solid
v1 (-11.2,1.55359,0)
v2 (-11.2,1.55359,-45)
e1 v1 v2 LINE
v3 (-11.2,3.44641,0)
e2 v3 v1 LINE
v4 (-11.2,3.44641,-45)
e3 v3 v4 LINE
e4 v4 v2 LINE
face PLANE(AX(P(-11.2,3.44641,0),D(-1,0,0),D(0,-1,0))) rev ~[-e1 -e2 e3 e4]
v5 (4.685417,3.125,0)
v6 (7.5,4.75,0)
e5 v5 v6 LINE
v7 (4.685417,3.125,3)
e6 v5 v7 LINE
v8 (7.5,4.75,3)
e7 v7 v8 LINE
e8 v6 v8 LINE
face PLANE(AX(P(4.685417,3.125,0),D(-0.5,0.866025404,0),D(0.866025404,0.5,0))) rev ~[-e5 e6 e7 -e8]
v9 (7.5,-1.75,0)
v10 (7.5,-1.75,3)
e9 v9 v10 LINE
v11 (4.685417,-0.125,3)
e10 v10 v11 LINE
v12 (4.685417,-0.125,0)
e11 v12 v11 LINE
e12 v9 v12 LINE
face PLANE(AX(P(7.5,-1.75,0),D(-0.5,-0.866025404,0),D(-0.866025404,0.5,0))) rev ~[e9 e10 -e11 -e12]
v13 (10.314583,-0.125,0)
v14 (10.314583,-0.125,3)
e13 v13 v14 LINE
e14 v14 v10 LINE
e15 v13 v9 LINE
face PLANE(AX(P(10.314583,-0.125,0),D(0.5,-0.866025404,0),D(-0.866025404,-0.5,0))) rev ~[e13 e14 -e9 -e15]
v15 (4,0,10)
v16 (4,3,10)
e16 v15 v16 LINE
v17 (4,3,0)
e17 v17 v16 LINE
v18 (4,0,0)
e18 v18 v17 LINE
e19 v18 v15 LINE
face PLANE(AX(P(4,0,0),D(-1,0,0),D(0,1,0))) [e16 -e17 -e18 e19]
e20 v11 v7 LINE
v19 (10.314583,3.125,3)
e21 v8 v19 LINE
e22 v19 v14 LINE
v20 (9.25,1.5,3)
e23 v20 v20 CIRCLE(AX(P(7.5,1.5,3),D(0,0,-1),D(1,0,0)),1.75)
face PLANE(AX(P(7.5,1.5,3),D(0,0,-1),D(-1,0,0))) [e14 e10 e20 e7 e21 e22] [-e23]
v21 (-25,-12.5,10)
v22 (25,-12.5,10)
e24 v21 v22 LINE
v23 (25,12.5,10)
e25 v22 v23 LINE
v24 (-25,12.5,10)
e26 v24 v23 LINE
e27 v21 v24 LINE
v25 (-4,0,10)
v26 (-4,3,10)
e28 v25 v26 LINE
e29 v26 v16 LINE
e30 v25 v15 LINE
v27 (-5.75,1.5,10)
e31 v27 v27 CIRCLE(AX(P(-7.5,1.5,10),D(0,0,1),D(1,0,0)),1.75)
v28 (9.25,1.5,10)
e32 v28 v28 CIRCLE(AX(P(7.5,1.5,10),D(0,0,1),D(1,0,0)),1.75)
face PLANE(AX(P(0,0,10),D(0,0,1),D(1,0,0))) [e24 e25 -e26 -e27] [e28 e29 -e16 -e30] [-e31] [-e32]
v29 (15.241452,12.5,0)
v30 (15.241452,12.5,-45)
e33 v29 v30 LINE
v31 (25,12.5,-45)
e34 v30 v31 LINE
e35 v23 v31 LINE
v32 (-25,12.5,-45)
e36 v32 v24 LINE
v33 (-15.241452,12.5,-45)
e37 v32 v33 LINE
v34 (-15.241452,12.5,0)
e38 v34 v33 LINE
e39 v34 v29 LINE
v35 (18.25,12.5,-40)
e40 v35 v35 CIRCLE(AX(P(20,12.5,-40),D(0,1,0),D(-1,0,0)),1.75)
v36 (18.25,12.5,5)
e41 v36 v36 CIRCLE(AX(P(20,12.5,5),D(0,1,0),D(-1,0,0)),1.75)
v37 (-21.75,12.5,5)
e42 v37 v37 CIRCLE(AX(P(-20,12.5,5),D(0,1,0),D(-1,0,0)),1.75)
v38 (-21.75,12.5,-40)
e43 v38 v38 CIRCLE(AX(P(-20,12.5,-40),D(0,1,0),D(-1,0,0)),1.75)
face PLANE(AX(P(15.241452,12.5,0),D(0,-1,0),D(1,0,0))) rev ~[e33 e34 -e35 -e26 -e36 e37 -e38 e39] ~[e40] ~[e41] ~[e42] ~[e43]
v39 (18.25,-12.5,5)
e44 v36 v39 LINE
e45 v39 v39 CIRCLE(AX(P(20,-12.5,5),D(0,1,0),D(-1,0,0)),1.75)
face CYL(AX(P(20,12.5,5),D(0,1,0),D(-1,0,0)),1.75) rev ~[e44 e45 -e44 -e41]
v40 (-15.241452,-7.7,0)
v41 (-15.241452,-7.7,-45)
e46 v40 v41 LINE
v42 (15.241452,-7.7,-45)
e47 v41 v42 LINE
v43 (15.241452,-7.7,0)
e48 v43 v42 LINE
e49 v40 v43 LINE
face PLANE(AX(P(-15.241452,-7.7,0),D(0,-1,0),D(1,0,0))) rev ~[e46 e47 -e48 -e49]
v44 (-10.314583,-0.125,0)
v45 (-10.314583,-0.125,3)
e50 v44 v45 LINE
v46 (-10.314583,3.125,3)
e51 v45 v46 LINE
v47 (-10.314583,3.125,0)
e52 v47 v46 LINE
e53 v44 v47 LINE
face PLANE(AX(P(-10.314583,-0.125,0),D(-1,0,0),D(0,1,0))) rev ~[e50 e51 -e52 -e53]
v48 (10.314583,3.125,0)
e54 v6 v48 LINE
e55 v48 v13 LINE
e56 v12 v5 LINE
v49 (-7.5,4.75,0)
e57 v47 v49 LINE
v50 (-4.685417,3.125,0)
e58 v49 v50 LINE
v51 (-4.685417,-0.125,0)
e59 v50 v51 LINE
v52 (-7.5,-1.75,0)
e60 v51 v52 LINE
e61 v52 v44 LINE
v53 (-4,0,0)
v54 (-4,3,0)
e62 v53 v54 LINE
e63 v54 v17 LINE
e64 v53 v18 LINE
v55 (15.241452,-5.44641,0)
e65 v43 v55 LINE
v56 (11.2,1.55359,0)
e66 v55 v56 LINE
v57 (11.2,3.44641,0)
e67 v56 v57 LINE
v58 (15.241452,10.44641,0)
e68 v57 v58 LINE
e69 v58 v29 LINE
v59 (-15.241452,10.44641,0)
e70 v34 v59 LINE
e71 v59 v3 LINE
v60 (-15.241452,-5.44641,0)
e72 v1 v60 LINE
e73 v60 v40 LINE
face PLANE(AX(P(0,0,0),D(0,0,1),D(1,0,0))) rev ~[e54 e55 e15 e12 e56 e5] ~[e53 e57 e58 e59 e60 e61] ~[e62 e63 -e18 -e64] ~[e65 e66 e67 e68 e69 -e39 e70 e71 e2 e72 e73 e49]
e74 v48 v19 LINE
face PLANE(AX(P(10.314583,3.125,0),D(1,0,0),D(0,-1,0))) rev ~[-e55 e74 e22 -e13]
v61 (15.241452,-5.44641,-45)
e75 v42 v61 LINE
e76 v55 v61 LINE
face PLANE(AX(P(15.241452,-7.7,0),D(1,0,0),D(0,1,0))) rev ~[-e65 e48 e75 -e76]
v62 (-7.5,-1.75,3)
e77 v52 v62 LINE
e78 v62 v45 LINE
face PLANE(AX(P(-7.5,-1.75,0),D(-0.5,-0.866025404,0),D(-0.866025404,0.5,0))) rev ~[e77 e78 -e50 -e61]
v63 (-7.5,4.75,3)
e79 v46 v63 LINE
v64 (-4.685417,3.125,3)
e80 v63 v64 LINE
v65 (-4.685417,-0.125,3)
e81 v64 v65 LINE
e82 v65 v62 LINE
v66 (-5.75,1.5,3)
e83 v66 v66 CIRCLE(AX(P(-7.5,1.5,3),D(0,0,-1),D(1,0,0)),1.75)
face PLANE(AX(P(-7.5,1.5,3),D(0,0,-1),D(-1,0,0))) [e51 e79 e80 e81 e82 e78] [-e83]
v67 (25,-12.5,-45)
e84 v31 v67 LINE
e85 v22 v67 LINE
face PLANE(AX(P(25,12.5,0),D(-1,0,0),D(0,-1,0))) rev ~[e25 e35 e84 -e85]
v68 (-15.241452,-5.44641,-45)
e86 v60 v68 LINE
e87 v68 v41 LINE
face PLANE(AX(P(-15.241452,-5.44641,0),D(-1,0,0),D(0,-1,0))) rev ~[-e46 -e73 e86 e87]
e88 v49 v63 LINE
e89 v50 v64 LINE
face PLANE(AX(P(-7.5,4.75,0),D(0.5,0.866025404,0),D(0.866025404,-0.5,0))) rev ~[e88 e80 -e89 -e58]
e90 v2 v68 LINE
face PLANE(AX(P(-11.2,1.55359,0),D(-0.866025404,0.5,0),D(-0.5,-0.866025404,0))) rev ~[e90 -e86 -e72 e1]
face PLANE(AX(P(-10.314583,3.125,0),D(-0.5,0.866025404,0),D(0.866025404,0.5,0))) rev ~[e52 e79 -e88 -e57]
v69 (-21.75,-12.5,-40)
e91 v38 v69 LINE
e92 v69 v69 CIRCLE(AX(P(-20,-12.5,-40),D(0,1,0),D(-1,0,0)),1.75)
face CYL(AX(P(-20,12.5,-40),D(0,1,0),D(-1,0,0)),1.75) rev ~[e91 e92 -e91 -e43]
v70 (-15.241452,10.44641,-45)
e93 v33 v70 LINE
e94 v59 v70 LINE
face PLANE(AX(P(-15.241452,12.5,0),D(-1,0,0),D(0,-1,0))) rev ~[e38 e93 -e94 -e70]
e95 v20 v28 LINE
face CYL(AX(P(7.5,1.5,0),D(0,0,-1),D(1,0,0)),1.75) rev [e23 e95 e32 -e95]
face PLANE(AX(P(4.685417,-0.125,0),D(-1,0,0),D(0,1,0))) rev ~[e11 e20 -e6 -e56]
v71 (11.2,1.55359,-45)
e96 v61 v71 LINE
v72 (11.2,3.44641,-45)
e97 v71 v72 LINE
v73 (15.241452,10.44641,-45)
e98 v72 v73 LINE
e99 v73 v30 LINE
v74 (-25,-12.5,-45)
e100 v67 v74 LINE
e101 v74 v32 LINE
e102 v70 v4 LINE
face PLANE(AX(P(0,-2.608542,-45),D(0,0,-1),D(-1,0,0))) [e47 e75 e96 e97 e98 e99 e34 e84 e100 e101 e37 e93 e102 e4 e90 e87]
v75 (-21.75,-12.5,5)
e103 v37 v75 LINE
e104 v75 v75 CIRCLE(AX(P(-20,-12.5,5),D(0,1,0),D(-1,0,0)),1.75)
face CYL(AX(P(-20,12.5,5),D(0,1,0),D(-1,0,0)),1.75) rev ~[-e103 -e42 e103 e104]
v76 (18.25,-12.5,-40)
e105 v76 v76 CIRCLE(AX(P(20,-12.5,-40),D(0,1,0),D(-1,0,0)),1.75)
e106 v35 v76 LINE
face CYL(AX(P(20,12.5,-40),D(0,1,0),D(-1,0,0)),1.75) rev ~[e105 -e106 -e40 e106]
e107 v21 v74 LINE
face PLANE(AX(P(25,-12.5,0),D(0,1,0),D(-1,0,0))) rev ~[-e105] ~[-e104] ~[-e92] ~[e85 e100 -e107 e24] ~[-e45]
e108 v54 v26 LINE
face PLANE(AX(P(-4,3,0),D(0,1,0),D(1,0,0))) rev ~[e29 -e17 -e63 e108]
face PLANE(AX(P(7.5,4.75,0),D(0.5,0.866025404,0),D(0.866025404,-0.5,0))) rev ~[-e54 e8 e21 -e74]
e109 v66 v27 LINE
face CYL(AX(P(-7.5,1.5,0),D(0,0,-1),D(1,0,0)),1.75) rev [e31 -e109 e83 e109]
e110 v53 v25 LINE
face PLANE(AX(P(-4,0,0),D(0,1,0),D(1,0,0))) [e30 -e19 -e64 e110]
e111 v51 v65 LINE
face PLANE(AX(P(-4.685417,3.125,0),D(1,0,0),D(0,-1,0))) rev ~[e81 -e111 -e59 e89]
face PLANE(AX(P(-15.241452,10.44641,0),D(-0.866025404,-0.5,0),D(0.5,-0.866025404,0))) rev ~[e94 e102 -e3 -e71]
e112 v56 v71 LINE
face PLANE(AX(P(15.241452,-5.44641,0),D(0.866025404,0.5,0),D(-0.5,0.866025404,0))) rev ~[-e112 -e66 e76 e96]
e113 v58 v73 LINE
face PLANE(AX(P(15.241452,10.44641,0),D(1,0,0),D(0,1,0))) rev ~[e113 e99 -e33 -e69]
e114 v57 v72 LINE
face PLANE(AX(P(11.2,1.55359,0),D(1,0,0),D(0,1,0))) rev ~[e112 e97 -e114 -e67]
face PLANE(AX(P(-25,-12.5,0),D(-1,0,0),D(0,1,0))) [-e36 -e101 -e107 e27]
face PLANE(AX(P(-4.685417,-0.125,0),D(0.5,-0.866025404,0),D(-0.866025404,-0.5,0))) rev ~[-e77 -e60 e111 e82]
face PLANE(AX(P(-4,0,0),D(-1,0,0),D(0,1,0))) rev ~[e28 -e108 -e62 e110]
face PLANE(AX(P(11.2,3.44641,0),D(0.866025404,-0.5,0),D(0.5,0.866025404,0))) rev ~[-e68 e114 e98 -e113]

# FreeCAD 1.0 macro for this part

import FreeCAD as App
import Part
import Sketcher

V = App.Vector
Q = App.Units.Quantity

doc = App.newDocument("Part")
params = doc.addObject("Spreadsheet::Sheet", "Params")
for row, (alias, value) in enumerate([
    ("sketch1_diameter", "3.5 mm"),
    ("sketch1_width", "50 mm"),
    ("sketch1_width2", "8 mm"),
    ("sketch1_height", "25 mm"),
    ("sketch1_height2", "3 mm"),
    ("pad1_length", "10 mm"),
    ("sketch2_width", "50 mm"),
    ("sketch2_height", "25 mm"),
    ("pad2_length", "45 mm"),
    ("sketch3_height", "3.25 mm"),
    ("pocket1_length", "3 mm"),
    ("sketch4_diameter", "3.5 mm"),
], start=1):
    params.set(f"A{row}", alias)
    params.set(f"B{row}", "=" + value)
    params.setAlias(f"B{row}", alias)

body = doc.addObject("PartDesign::Body", "Body")

sketch1 = doc.addObject("Sketcher::SketchObject", "Sketch")
body.addObject(sketch1)
sketch1.AttachmentSupport = (doc.XY_Plane, [""])
sketch1.MapMode = "FlatFace"
sketch1.addGeometry(Part.LineSegment(V(-25, 12.5, 0), V(-25, -12.5, 0)), False)
sketch1.addGeometry(Part.LineSegment(V(-25, -12.5, 0), V(25, -12.5, 0)), False)
sketch1.addGeometry(Part.LineSegment(V(25, -12.5, 0), V(25, 12.5, 0)), False)
sketch1.addGeometry(Part.LineSegment(V(25, 12.5, 0), V(-25, 12.5, 0)), False)
sketch1.addGeometry(Part.Circle(V(-7.5, 1.5, 0), V(0, 0, 1), 1.75), False)
sketch1.addGeometry(Part.LineSegment(V(4, 0, 0), V(-4, 0, 0)), False)
sketch1.addGeometry(Part.LineSegment(V(-4, 0, 0), V(-4, 3, 0)), False)
sketch1.addGeometry(Part.LineSegment(V(-4, 3, 0), V(4, 3, 0)), False)
sketch1.addGeometry(Part.LineSegment(V(4, 3, 0), V(4, 0, 0)), False)
sketch1.addGeometry(Part.Circle(V(7.5, 1.5, 0), V(0, 0, 1), 1.75), False)
sketch1.addConstraint(Sketcher.Constraint("Coincident", 0, 2, 1, 1))
sketch1.addConstraint(Sketcher.Constraint("Coincident", 1, 2, 2, 1))
sketch1.addConstraint(Sketcher.Constraint("Coincident", 2, 2, 3, 1))
sketch1.addConstraint(Sketcher.Constraint("Coincident", 3, 2, 0, 1))
sketch1.addConstraint(Sketcher.Constraint("Coincident", 5, 2, 6, 1))
sketch1.addConstraint(Sketcher.Constraint("Coincident", 6, 2, 7, 1))
sketch1.addConstraint(Sketcher.Constraint("Coincident", 7, 2, 8, 1))
sketch1.addConstraint(Sketcher.Constraint("Coincident", 8, 2, 5, 1))
sketch1.addConstraint(Sketcher.Constraint("Vertical", 0))
sketch1.addConstraint(Sketcher.Constraint("Horizontal", 1))
sketch1.addConstraint(Sketcher.Constraint("Vertical", 2))
sketch1.addConstraint(Sketcher.Constraint("Horizontal", 3))
sketch1.addConstraint(Sketcher.Constraint("Horizontal", 5))
sketch1.addConstraint(Sketcher.Constraint("Vertical", 6))
sketch1.addConstraint(Sketcher.Constraint("Horizontal", 7))
sketch1.addConstraint(Sketcher.Constraint("Vertical", 8))
sketch1.addConstraint(Sketcher.Constraint("Equal", 4, 9))
sketch1.addConstraint(Sketcher.Constraint("Symmetric", 0, 2, 2, 2, -1, 1))
sketch1.addConstraint(Sketcher.Constraint("Symmetric", 5, 2, 8, 2, -1, 1))
sketch1.addConstraint(Sketcher.Constraint("Symmetric", 4, 3, 9, 3, -2))
sketch1.addConstraint(Sketcher.Constraint("Diameter", 4, Q("3.5 mm")))
sketch1.addConstraint(Sketcher.Constraint("DistanceX", 1, 1, 1, 2, Q("50 mm")))
sketch1.addConstraint(Sketcher.Constraint("DistanceX", 5, 2, 5, 1, Q("8 mm")))
sketch1.addConstraint(Sketcher.Constraint("DistanceY", 0, 2, 0, 1, Q("25 mm")))
sketch1.addConstraint(Sketcher.Constraint("DistanceY", 6, 1, 6, 2, Q("3 mm")))
sketch1.addConstraint(Sketcher.Constraint("DistanceX", 4, 3, 9, 3, Q("15 mm")))
sketch1.addConstraint(Sketcher.Constraint("DistanceY", 0, 2, 4, 3, Q("14 mm")))
sketch1.setExpression("Constraints[20]", "Params.sketch1_diameter")
sketch1.setExpression("Constraints[21]", "Params.sketch1_width")
sketch1.setExpression("Constraints[22]", "Params.sketch1_width2")
sketch1.setExpression("Constraints[23]", "Params.sketch1_height")
sketch1.setExpression("Constraints[24]", "Params.sketch1_height2")
pad1 = doc.addObject("PartDesign::Pad", "Pad")
body.addObject(pad1)
pad1.Profile = sketch1
pad1.setExpression("Length", "Params.pad1_length")

sketch2 = doc.addObject("Sketcher::SketchObject", "Sketch001")
body.addObject(sketch2)
sketch2.AttachmentSupport = (doc.XY_Plane, [""])
sketch2.MapMode = "FlatFace"
sketch2.addGeometry(Part.LineSegment(V(15.241452, 12.5, 0), V(25, 12.5, 0)), False)
sketch2.addGeometry(Part.LineSegment(V(25, 12.5, 0), V(25, -12.5, 0)), False)
sketch2.addGeometry(Part.LineSegment(V(25, -12.5, 0), V(-25, -12.5, 0)), False)
sketch2.addGeometry(Part.LineSegment(V(-25, -12.5, 0), V(-25, 12.5, 0)), False)
sketch2.addGeometry(Part.LineSegment(V(-25, 12.5, 0), V(-15.241452, 12.5, 0)), False)
sketch2.addGeometry(Part.LineSegment(V(-15.241452, 12.5, 0), V(-15.241452, 10.44641, 0)), False)
sketch2.addGeometry(Part.LineSegment(V(-15.241452, 10.44641, 0), V(-11.2, 3.44641, 0)), False)
sketch2.addGeometry(Part.LineSegment(V(-11.2, 3.44641, 0), V(-11.2, 1.55359, 0)), False)
sketch2.addGeometry(Part.LineSegment(V(-11.2, 1.55359, 0), V(-15.241452, -5.44641, 0)), False)
sketch2.addGeometry(Part.LineSegment(V(-15.241452, -5.44641, 0), V(-15.241452, -7.7, 0)), False)
sketch2.addGeometry(Part.LineSegment(V(-15.241452, -7.7, 0), V(15.241452, -7.7, 0)), False)
sketch2.addGeometry(Part.LineSegment(V(15.241452, -7.7, 0), V(15.241452, -5.44641, 0)), False)
sketch2.addGeometry(Part.LineSegment(V(15.241452, -5.44641, 0), V(11.2, 1.55359, 0)), False)
sketch2.addGeometry(Part.LineSegment(V(11.2, 1.55359, 0), V(11.2, 3.44641, 0)), False)
sketch2.addGeometry(Part.LineSegment(V(11.2, 3.44641, 0), V(15.241452, 10.44641, 0)), False)
sketch2.addGeometry(Part.LineSegment(V(15.241452, 10.44641, 0), V(15.241452, 12.5, 0)), False)
sketch2.addConstraint(Sketcher.Constraint("Coincident", 0, 2, 1, 1))
sketch2.addConstraint(Sketcher.Constraint("Coincident", 1, 2, 2, 1))
sketch2.addConstraint(Sketcher.Constraint("Coincident", 2, 2, 3, 1))
sketch2.addConstraint(Sketcher.Constraint("Coincident", 3, 2, 4, 1))
sketch2.addConstraint(Sketcher.Constraint("Coincident", 4, 2, 5, 1))
sketch2.addConstraint(Sketcher.Constraint("Coincident", 5, 2, 6, 1))
sketch2.addConstraint(Sketcher.Constraint("Coincident", 6, 2, 7, 1))
sketch2.addConstraint(Sketcher.Constraint("Coincident", 7, 2, 8, 1))
sketch2.addConstraint(Sketcher.Constraint("Coincident", 8, 2, 9, 1))
sketch2.addConstraint(Sketcher.Constraint("Coincident", 9, 2, 10, 1))
sketch2.addConstraint(Sketcher.Constraint("Coincident", 10, 2, 11, 1))
sketch2.addConstraint(Sketcher.Constraint("Coincident", 11, 2, 12, 1))
sketch2.addConstraint(Sketcher.Constraint("Coincident", 12, 2, 13, 1))
sketch2.addConstraint(Sketcher.Constraint("Coincident", 13, 2, 14, 1))
sketch2.addConstraint(Sketcher.Constraint("Coincident", 14, 2, 15, 1))
sketch2.addConstraint(Sketcher.Constraint("Coincident", 15, 2, 0, 1))
sketch2.addConstraint(Sketcher.Constraint("Horizontal", 0))
sketch2.addConstraint(Sketcher.Constraint("Vertical", 1))
sketch2.addConstraint(Sketcher.Constraint("Horizontal", 2))
sketch2.addConstraint(Sketcher.Constraint("Vertical", 3))
sketch2.addConstraint(Sketcher.Constraint("Horizontal", 4))
sketch2.addConstraint(Sketcher.Constraint("Vertical", 5))
sketch2.addConstraint(Sketcher.Constraint("Vertical", 7))
sketch2.addConstraint(Sketcher.Constraint("Vertical", 9))
sketch2.addConstraint(Sketcher.Constraint("Horizontal", 10))
sketch2.addConstraint(Sketcher.Constraint("Vertical", 11))
sketch2.addConstraint(Sketcher.Constraint("Vertical", 13))
sketch2.addConstraint(Sketcher.Constraint("Vertical", 15))
sketch2.addConstraint(Sketcher.Constraint("Symmetric", 0, 2, 2, 2, -1, 1))
sketch2.addConstraint(Sketcher.Constraint("Symmetric", 8, 2, 11, 2, -2))
sketch2.addConstraint(Sketcher.Constraint("Symmetric", 7, 2, 12, 2, -2))
sketch2.addConstraint(Sketcher.Constraint("Symmetric", 5, 2, 14, 2, -2))
sketch2.addConstraint(Sketcher.Constraint("Parallel", 6, 12))
sketch2.addConstraint(Sketcher.Constraint("Parallel", 8, 14))
sketch2.addConstraint(Sketcher.Constraint("Horizontal", 0, 2, 3, 2))
sketch2.addConstraint(Sketcher.Constraint("Vertical", 5, 2, 8, 2))
sketch2.addConstraint(Sketcher.Constraint("DistanceX", 2, 2, 2, 1, Q("50 mm")))
sketch2.addConstraint(Sketcher.Constraint("DistanceY", 1, 2, 1, 1, Q("25 mm")))
sketch2.addConstraint(Sketcher.Constraint("Angle", 6, Q("-60 deg")))
sketch2.addConstraint(Sketcher.Constraint("DistanceY", 6, 2, 5, 2, Q("7 mm")))
sketch2.addConstraint(Sketcher.Constraint("DistanceX", 6, 2, -1, 1, Q("11.2 mm")))
sketch2.addConstraint(Sketcher.Constraint("DistanceY", 9, 2, -1, 1, Q("7.7 mm")))
sketch2.addConstraint(Sketcher.Constraint("DistanceY", 5, 2, 5, 1, Q("2.05359 mm")))
sketch2.addConstraint(Sketcher.Constraint("DistanceY", 7, 2, 7, 1, Q("1.89282 mm")))
sketch2.setExpression("Constraints[36]", "Params.sketch2_width")
sketch2.setExpression("Constraints[37]", "Params.sketch2_height")
pad2 = doc.addObject("PartDesign::Pad", "Pad001")
body.addObject(pad2)
pad2.Profile = sketch2
pad2.setExpression("Length", "Params.pad2_length")
pad2.Reversed = True

sketch3 = doc.addObject("Sketcher::SketchObject", "Sketch002")
body.addObject(sketch3)
sketch3.AttachmentSupport = (doc.XY_Plane, [""])
sketch3.MapMode = "FlatFace"
sketch3.addGeometry(Part.LineSegment(V(7.5, 4.75, 0), V(10.314583, 3.125, 0)), False)
sketch3.addGeometry(Part.LineSegment(V(10.314583, 3.125, 0), V(10.314583, -0.125, 0)), False)
sketch3.addGeometry(Part.LineSegment(V(10.314583, -0.125, 0), V(7.5, -1.75, 0)), False)
sketch3.addGeometry(Part.LineSegment(V(7.5, -1.75, 0), V(4.685417, -0.125, 0)), False)
sketch3.addGeometry(Part.LineSegment(V(4.685417, -0.125, 0), V(4.685417, 3.125, 0)), False)
sketch3.addGeometry(Part.LineSegment(V(4.685417, 3.125, 0), V(7.5, 4.75, 0)), False)
sketch3.addGeometry(Part.LineSegment(V(-7.5, 4.75, 0), V(-4.685417, 3.125, 0)), False)
sketch3.addGeometry(Part.LineSegment(V(-4.685417, 3.125, 0), V(-4.685417, -0.125, 0)), False)
sketch3.addGeometry(Part.LineSegment(V(-4.685417, -0.125, 0), V(-7.5, -1.75, 0)), False)
sketch3.addGeometry(Part.LineSegment(V(-7.5, -1.75, 0), V(-10.314583, -0.125, 0)), False)
sketch3.addGeometry(Part.LineSegment(V(-10.314583, -0.125, 0), V(-10.314583, 3.125, 0)), False)
sketch3.addGeometry(Part.LineSegment(V(-10.314583, 3.125, 0), V(-7.5, 4.75, 0)), False)
sketch3.addConstraint(Sketcher.Constraint("Coincident", 0, 2, 1, 1))
sketch3.addConstraint(Sketcher.Constraint("Coincident", 1, 2, 2, 1))
sketch3.addConstraint(Sketcher.Constraint("Coincident", 2, 2, 3, 1))
sketch3.addConstraint(Sketcher.Constraint("Coincident", 3, 2, 4, 1))
sketch3.addConstraint(Sketcher.Constraint("Coincident", 4, 2, 5, 1))
sketch3.addConstraint(Sketcher.Constraint("Coincident", 5, 2, 0, 1))
sketch3.addConstraint(Sketcher.Constraint("Coincident", 6, 2, 7, 1))
sketch3.addConstraint(Sketcher.Constraint("Coincident", 7, 2, 8, 1))
sketch3.addConstraint(Sketcher.Constraint("Coincident", 8, 2, 9, 1))
sketch3.addConstraint(Sketcher.Constraint("Coincident", 9, 2, 10, 1))
sketch3.addConstraint(Sketcher.Constraint("Coincident", 10, 2, 11, 1))
sketch3.addConstraint(Sketcher.Constraint("Coincident", 11, 2, 6, 1))
sketch3.addConstraint(Sketcher.Constraint("Vertical", 1))
sketch3.addConstraint(Sketcher.Constraint("Vertical", 4))
sketch3.addConstraint(Sketcher.Constraint("Vertical", 7))
sketch3.addConstraint(Sketcher.Constraint("Vertical", 10))
sketch3.addConstraint(Sketcher.Constraint("Symmetric", 4, 2, 6, 2, -2))
sketch3.addConstraint(Sketcher.Constraint("Symmetric", 2, 2, 8, 2, -2))
sketch3.addConstraint(Sketcher.Constraint("Symmetric", 1, 2, 9, 2, -2))
sketch3.addConstraint(Sketcher.Constraint("Symmetric", 5, 2, 11, 2, -2))
sketch3.addConstraint(Sketcher.Constraint("Parallel", 0, 3))
sketch3.addConstraint(Sketcher.Constraint("Parallel", 2, 5))
sketch3.addConstraint(Sketcher.Constraint("Parallel", 3, 6))
sketch3.addConstraint(Sketcher.Constraint("Parallel", 5, 8))
sketch3.addConstraint(Sketcher.Constraint("Parallel", 8, 11))
sketch3.addConstraint(Sketcher.Constraint("Horizontal", 1, 2, 3, 2))
sketch3.addConstraint(Sketcher.Constraint("Horizontal", 0, 2, 4, 2))
sketch3.addConstraint(Sketcher.Constraint("Angle", 0, Q("-30 deg")))
sketch3.addConstraint(Sketcher.Constraint("DistanceX", 6, 2, 0, 2, Q("15 mm")))
sketch3.addConstraint(Sketcher.Constraint("DistanceY", 1, 2, 1, 1, Q("3.25 mm")))
sketch3.addConstraint(Sketcher.Constraint("DistanceY", 2, 2, 5, 2, Q("6.5 mm")))
sketch3.addConstraint(Sketcher.Constraint("DistanceY", 2, 2, -1, 1, Q("1.75 mm")))
sketch3.setExpression("Constraints[29]", "Params.sketch3_height")
pocket1 = doc.addObject("PartDesign::Pocket", "Pocket")
body.addObject(pocket1)
pocket1.Profile = sketch3
pocket1.setExpression("Length", "Params.pocket1_length")
pocket1.Reversed = True

sketch4 = doc.addObject("Sketcher::SketchObject", "Sketch003")
body.addObject(sketch4)
sketch4.AttachmentSupport = (doc.XZ_Plane, [""])
sketch4.MapMode = "FlatFace"
sketch4.AttachmentOffset = App.Placement(V(0, 0, -12.5), App.Rotation())
sketch4.addGeometry(Part.Circle(V(-20, 5, 0), V(0, 0, 1), 1.75), False)
sketch4.addGeometry(Part.Circle(V(-20, -40, 0), V(0, 0, 1), 1.75), False)
sketch4.addGeometry(Part.Circle(V(20, -40, 0), V(0, 0, 1), 1.75), False)
sketch4.addGeometry(Part.Circle(V(20, 5, 0), V(0, 0, 1), 1.75), False)
sketch4.addConstraint(Sketcher.Constraint("Equal", 0, 1))
sketch4.addConstraint(Sketcher.Constraint("Equal", 1, 2))
sketch4.addConstraint(Sketcher.Constraint("Equal", 2, 3))
sketch4.addConstraint(Sketcher.Constraint("Symmetric", 1, 3, 2, 3, -2))
sketch4.addConstraint(Sketcher.Constraint("Symmetric", 0, 3, 3, 3, -2))
sketch4.addConstraint(Sketcher.Constraint("Vertical", 0, 3, 1, 3))
sketch4.addConstraint(Sketcher.Constraint("Diameter", 0, Q("3.5 mm")))
sketch4.addConstraint(Sketcher.Constraint("DistanceX", 0, 3, -1, 1, Q("20 mm")))
sketch4.addConstraint(Sketcher.Constraint("DistanceY", -1, 1, 0, 3, Q("5 mm")))
sketch4.addConstraint(Sketcher.Constraint("DistanceY", 1, 3, -1, 1, Q("40 mm")))
sketch4.setExpression("Constraints[6]", "Params.sketch4_diameter")
pocket2 = doc.addObject("PartDesign::Pocket", "Pocket001")
body.addObject(pocket2)
pocket2.Profile = sketch4
pocket2.Type = "ThroughAll"
pocket2.Reversed = True

doc.recompute()
